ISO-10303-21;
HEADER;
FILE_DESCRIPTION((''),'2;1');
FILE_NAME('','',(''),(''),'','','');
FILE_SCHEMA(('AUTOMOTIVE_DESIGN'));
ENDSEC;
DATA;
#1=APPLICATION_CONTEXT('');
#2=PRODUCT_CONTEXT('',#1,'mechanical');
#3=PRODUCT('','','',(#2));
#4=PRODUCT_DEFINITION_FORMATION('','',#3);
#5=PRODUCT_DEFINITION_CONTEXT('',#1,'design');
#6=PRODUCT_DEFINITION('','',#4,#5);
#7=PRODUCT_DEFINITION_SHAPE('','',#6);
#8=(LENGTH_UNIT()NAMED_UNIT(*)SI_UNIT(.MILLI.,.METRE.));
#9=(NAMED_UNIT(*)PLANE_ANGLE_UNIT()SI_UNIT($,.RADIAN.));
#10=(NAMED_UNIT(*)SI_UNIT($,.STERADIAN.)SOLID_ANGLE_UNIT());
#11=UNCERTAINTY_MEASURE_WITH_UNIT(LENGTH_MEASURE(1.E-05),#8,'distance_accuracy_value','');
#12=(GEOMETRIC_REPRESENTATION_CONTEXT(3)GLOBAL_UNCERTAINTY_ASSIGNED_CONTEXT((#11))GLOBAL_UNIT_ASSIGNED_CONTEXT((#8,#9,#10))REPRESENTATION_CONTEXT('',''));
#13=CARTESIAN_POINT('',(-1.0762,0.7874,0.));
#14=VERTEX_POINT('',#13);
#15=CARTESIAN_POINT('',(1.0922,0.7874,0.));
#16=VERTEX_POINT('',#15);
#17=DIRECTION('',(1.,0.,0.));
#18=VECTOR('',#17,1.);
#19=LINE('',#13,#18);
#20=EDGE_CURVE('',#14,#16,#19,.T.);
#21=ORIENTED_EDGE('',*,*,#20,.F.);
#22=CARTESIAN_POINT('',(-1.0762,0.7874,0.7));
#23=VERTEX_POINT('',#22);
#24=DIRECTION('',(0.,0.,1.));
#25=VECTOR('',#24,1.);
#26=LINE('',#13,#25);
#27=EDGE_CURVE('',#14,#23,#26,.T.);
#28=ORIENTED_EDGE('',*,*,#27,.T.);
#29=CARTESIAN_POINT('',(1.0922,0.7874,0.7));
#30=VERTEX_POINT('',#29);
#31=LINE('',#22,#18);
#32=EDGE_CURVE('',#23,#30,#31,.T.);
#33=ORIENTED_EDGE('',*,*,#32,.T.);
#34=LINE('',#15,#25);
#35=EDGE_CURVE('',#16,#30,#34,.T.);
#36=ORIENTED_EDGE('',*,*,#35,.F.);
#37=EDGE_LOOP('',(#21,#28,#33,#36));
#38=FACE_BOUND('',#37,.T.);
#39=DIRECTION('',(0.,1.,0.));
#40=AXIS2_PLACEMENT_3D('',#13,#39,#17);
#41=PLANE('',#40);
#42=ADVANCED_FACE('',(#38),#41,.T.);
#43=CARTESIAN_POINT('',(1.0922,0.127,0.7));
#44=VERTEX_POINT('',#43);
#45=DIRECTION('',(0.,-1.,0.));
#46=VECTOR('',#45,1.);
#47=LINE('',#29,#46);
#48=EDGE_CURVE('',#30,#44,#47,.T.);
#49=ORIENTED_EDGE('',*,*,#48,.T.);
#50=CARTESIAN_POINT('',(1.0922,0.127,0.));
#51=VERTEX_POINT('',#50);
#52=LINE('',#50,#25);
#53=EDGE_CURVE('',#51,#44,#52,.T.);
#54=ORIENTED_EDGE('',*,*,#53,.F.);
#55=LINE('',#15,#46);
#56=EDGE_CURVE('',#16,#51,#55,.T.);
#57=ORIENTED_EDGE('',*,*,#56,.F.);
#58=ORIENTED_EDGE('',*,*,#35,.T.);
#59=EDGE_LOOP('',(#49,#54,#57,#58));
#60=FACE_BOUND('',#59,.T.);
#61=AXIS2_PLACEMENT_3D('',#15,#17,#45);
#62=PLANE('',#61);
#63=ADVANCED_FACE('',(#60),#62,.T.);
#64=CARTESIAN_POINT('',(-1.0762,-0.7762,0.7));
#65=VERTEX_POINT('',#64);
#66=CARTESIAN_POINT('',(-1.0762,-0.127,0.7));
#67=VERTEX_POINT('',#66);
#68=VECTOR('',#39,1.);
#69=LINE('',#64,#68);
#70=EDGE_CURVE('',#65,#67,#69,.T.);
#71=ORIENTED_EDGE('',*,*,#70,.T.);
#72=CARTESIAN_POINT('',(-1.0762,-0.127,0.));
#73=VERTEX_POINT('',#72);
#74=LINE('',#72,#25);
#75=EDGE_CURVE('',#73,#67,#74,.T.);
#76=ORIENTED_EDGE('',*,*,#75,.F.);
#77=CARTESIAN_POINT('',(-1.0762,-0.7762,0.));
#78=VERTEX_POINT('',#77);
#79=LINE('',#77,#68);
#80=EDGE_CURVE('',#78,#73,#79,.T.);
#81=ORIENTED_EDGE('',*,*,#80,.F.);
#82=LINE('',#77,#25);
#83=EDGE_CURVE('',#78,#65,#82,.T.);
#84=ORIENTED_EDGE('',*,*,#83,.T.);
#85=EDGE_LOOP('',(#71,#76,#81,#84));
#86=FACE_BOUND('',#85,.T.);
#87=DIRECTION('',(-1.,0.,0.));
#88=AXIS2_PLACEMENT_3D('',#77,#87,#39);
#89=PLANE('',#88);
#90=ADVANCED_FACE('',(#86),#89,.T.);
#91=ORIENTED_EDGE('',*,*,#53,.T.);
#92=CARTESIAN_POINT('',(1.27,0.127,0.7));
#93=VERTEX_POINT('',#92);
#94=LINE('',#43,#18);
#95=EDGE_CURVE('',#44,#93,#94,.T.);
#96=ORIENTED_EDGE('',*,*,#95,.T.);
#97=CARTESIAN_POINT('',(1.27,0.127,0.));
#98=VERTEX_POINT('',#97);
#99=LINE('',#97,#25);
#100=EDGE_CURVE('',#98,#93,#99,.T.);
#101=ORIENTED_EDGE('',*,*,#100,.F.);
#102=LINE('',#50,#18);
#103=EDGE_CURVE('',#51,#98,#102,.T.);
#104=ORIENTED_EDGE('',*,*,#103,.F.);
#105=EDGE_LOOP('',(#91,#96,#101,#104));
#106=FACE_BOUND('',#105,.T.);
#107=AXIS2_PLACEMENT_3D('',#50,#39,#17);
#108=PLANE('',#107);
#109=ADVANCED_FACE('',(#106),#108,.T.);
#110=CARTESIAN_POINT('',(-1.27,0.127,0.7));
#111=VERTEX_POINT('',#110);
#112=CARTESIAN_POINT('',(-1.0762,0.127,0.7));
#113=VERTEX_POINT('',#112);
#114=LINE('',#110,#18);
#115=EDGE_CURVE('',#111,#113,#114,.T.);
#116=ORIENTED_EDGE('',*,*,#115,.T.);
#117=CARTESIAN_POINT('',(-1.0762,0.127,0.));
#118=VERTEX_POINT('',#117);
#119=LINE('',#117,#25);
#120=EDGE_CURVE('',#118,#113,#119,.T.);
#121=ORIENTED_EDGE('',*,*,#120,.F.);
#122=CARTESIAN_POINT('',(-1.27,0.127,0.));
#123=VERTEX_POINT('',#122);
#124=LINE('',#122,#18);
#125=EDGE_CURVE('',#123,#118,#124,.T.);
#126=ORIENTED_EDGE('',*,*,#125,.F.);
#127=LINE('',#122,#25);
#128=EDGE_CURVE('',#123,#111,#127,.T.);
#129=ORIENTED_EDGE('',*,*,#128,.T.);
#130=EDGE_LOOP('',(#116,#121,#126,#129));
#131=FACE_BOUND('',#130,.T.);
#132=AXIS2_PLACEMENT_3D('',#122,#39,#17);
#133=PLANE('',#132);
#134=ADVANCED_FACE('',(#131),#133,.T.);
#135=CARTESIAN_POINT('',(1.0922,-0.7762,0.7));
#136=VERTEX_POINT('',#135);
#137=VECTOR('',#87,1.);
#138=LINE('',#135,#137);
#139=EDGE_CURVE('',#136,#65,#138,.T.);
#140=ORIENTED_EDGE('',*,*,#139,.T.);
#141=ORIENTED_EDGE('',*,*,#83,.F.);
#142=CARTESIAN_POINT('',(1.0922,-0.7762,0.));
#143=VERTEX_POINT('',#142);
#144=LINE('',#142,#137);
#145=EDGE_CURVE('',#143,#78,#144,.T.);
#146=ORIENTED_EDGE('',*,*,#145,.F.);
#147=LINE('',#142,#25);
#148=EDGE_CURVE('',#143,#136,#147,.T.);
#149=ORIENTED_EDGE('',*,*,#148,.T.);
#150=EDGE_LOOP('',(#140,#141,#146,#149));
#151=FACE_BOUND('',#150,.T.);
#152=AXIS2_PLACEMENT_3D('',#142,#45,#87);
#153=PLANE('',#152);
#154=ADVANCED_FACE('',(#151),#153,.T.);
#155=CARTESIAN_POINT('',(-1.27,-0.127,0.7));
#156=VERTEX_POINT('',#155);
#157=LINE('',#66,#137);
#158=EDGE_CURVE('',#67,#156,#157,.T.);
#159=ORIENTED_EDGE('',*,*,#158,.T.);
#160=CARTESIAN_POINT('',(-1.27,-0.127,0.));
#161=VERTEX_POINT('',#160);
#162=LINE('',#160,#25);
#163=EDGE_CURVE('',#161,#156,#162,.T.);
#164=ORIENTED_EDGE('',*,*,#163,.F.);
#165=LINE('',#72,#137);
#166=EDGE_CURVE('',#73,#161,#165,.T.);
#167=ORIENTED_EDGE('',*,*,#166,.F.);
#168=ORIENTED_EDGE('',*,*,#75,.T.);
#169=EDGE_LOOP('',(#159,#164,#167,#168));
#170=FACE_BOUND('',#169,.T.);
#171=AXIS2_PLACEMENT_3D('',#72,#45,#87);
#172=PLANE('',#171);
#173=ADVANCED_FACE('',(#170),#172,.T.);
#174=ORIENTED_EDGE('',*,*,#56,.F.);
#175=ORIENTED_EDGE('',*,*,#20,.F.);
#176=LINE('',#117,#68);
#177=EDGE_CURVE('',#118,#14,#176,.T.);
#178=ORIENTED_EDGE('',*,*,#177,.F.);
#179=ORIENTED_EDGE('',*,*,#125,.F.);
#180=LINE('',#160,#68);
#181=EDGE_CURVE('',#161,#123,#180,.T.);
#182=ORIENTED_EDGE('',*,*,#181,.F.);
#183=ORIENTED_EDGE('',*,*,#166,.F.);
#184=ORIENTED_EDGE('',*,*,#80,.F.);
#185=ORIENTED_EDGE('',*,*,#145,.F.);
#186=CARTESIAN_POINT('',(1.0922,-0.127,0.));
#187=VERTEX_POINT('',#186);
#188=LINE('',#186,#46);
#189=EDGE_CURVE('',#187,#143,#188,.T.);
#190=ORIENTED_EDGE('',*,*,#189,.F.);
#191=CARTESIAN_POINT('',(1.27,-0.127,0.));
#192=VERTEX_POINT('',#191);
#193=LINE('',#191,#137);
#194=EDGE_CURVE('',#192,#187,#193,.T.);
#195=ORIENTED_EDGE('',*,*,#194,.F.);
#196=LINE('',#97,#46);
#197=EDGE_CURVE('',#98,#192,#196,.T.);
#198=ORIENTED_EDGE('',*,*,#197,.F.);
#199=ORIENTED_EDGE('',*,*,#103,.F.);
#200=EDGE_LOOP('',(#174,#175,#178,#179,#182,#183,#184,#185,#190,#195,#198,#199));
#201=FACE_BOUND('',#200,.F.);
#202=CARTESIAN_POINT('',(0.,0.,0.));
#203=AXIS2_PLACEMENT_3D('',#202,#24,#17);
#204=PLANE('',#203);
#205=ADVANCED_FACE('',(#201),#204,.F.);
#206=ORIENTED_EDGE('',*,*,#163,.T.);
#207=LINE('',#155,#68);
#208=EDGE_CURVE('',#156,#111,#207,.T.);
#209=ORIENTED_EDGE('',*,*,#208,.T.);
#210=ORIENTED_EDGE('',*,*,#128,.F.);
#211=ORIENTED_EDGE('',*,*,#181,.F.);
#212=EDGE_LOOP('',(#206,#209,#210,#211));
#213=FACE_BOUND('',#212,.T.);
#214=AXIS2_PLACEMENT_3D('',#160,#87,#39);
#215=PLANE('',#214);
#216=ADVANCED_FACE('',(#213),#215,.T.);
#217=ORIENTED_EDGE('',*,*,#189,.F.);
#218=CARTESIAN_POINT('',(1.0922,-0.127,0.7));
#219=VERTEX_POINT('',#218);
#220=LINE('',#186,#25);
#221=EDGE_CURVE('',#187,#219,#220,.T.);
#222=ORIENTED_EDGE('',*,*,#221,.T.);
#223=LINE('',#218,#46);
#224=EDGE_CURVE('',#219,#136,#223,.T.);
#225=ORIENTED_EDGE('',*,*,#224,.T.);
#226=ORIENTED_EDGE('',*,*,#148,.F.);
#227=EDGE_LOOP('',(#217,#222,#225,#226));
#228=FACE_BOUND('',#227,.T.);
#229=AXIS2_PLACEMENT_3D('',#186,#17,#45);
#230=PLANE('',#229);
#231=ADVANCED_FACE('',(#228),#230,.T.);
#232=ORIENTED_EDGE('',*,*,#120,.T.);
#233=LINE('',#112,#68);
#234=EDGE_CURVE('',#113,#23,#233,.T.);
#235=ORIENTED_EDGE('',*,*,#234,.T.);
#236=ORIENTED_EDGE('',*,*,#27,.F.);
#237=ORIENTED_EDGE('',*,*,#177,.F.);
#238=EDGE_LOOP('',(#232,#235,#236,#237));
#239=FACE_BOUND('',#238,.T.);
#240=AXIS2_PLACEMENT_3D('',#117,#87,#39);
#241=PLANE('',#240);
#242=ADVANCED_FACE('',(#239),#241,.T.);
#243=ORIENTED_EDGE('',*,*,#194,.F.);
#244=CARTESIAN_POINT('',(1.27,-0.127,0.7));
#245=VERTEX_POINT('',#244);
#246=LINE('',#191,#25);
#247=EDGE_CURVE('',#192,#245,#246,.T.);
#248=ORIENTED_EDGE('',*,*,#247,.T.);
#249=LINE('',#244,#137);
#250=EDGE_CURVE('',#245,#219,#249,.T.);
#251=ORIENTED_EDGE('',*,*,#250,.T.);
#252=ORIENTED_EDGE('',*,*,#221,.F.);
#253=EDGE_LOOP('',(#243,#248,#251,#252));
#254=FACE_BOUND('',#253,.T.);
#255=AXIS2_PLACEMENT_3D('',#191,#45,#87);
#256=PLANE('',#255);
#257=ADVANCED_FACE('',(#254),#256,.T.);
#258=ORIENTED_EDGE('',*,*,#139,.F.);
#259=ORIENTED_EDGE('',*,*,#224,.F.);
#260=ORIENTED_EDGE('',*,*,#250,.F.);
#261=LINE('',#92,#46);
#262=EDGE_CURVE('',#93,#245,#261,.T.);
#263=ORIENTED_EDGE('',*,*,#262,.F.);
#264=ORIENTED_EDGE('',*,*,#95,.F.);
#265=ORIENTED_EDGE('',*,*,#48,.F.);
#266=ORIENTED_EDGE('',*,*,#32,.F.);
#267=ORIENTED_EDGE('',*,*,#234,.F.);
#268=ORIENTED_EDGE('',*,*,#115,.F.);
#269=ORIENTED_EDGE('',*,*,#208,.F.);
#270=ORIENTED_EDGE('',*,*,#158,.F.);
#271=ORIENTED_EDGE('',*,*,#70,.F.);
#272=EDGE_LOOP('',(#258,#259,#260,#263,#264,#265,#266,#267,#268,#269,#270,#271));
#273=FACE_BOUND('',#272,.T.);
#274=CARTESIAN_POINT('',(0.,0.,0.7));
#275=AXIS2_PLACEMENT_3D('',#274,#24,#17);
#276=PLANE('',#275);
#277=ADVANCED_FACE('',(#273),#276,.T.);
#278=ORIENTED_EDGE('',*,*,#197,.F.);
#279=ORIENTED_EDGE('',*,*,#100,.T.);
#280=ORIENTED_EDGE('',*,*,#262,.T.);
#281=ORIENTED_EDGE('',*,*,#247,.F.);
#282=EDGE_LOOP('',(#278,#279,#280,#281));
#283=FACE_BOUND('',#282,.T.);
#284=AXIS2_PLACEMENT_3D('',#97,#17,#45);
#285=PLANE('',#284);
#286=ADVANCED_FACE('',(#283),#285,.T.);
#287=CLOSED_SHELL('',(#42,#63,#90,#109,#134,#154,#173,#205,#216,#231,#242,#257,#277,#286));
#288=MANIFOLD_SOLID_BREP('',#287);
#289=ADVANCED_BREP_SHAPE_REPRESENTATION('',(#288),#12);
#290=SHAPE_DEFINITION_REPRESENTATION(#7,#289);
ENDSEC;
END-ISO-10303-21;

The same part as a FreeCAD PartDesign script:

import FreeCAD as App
import Part
import Sketcher
from FreeCAD import Vector
Q = App.Units.Quantity


def add_polygon(sketch, points):
    """Adds a closed chain of lines whose ends are joined by coincident constraints."""
    first, n = sketch.GeometryCount, len(points)
    for a, b in zip(points, points[1:] + points[:1]):
        sketch.addGeometry(Part.LineSegment(App.Vector(*a, 0), App.Vector(*b, 0)), False)
    for i in range(n):
        sketch.addConstraint(Sketcher.Constraint("Coincident", first + i, 2, first + (i + 1) % n, 1))

doc = App.newDocument("Part")
body = doc.addObject("PartDesign::Body", "Body")

# Sketch on XY plane
sketch1 = body.newObject("Sketcher::SketchObject", "Sketch")
sketch1.AttachmentSupport = (doc.getObject("XY_Plane"), [""])
sketch1.MapMode = "FlatFace"
add_polygon(sketch1, [(-1.0762, 0.7874), (-1.0762, 0.127), (-1.27, 0.127), (-1.27, -0.127), (-1.0762, -0.127), (-1.0762, -0.7762), (1.0922, -0.7762), (1.0922, -0.127), (1.27, -0.127), (1.27, 0.127), (1.0922, 0.127), (1.0922, 0.7874)])  # lines 0-11
sketch1.addConstraint([
    Sketcher.Constraint("Vertical", 0),
    Sketcher.Constraint("Horizontal", 1),
    Sketcher.Constraint("Vertical", 2),
    Sketcher.Constraint("Horizontal", 3),
    Sketcher.Constraint("Vertical", 4),
    Sketcher.Constraint("Horizontal", 5),
    Sketcher.Constraint("Vertical", 6),
    Sketcher.Constraint("Horizontal", 7),
    Sketcher.Constraint("Vertical", 8),
    Sketcher.Constraint("Horizontal", 9),
    Sketcher.Constraint("Vertical", 10),
    Sketcher.Constraint("Horizontal", 11),
    Sketcher.Constraint("Symmetric", 1, 2, 7, 2, -1, 1),
    Sketcher.Constraint("Symmetric", 0, 2, 3, 2, -1),
    Sketcher.Constraint("Symmetric", 6, 2, 9, 2, -1),
    Sketcher.Constraint("DistanceY", 2, 2, 2, 1, Q("0.01 in")),
    Sketcher.Constraint("DistanceX", 7, 1, 7, 2, Q("0.007 in")),
    Sketcher.Constraint("DistanceY", 0, 2, 0, 1, Q("0.026 in")),
    Sketcher.Constraint("DistanceX", 1, 2, -1, 1, Q("0.05 in")),
    Sketcher.Constraint("DistanceX", 1, 2, 1, 1, Q("0.1938 mm")),
    Sketcher.Constraint("DistanceY", 4, 2, 4, 1, Q("0.6492 mm")),
])
pad1 = body.newObject("PartDesign::Pad", "Pad")
pad1.Profile = sketch1
pad1.Length = 0.7

doc.recompute()
